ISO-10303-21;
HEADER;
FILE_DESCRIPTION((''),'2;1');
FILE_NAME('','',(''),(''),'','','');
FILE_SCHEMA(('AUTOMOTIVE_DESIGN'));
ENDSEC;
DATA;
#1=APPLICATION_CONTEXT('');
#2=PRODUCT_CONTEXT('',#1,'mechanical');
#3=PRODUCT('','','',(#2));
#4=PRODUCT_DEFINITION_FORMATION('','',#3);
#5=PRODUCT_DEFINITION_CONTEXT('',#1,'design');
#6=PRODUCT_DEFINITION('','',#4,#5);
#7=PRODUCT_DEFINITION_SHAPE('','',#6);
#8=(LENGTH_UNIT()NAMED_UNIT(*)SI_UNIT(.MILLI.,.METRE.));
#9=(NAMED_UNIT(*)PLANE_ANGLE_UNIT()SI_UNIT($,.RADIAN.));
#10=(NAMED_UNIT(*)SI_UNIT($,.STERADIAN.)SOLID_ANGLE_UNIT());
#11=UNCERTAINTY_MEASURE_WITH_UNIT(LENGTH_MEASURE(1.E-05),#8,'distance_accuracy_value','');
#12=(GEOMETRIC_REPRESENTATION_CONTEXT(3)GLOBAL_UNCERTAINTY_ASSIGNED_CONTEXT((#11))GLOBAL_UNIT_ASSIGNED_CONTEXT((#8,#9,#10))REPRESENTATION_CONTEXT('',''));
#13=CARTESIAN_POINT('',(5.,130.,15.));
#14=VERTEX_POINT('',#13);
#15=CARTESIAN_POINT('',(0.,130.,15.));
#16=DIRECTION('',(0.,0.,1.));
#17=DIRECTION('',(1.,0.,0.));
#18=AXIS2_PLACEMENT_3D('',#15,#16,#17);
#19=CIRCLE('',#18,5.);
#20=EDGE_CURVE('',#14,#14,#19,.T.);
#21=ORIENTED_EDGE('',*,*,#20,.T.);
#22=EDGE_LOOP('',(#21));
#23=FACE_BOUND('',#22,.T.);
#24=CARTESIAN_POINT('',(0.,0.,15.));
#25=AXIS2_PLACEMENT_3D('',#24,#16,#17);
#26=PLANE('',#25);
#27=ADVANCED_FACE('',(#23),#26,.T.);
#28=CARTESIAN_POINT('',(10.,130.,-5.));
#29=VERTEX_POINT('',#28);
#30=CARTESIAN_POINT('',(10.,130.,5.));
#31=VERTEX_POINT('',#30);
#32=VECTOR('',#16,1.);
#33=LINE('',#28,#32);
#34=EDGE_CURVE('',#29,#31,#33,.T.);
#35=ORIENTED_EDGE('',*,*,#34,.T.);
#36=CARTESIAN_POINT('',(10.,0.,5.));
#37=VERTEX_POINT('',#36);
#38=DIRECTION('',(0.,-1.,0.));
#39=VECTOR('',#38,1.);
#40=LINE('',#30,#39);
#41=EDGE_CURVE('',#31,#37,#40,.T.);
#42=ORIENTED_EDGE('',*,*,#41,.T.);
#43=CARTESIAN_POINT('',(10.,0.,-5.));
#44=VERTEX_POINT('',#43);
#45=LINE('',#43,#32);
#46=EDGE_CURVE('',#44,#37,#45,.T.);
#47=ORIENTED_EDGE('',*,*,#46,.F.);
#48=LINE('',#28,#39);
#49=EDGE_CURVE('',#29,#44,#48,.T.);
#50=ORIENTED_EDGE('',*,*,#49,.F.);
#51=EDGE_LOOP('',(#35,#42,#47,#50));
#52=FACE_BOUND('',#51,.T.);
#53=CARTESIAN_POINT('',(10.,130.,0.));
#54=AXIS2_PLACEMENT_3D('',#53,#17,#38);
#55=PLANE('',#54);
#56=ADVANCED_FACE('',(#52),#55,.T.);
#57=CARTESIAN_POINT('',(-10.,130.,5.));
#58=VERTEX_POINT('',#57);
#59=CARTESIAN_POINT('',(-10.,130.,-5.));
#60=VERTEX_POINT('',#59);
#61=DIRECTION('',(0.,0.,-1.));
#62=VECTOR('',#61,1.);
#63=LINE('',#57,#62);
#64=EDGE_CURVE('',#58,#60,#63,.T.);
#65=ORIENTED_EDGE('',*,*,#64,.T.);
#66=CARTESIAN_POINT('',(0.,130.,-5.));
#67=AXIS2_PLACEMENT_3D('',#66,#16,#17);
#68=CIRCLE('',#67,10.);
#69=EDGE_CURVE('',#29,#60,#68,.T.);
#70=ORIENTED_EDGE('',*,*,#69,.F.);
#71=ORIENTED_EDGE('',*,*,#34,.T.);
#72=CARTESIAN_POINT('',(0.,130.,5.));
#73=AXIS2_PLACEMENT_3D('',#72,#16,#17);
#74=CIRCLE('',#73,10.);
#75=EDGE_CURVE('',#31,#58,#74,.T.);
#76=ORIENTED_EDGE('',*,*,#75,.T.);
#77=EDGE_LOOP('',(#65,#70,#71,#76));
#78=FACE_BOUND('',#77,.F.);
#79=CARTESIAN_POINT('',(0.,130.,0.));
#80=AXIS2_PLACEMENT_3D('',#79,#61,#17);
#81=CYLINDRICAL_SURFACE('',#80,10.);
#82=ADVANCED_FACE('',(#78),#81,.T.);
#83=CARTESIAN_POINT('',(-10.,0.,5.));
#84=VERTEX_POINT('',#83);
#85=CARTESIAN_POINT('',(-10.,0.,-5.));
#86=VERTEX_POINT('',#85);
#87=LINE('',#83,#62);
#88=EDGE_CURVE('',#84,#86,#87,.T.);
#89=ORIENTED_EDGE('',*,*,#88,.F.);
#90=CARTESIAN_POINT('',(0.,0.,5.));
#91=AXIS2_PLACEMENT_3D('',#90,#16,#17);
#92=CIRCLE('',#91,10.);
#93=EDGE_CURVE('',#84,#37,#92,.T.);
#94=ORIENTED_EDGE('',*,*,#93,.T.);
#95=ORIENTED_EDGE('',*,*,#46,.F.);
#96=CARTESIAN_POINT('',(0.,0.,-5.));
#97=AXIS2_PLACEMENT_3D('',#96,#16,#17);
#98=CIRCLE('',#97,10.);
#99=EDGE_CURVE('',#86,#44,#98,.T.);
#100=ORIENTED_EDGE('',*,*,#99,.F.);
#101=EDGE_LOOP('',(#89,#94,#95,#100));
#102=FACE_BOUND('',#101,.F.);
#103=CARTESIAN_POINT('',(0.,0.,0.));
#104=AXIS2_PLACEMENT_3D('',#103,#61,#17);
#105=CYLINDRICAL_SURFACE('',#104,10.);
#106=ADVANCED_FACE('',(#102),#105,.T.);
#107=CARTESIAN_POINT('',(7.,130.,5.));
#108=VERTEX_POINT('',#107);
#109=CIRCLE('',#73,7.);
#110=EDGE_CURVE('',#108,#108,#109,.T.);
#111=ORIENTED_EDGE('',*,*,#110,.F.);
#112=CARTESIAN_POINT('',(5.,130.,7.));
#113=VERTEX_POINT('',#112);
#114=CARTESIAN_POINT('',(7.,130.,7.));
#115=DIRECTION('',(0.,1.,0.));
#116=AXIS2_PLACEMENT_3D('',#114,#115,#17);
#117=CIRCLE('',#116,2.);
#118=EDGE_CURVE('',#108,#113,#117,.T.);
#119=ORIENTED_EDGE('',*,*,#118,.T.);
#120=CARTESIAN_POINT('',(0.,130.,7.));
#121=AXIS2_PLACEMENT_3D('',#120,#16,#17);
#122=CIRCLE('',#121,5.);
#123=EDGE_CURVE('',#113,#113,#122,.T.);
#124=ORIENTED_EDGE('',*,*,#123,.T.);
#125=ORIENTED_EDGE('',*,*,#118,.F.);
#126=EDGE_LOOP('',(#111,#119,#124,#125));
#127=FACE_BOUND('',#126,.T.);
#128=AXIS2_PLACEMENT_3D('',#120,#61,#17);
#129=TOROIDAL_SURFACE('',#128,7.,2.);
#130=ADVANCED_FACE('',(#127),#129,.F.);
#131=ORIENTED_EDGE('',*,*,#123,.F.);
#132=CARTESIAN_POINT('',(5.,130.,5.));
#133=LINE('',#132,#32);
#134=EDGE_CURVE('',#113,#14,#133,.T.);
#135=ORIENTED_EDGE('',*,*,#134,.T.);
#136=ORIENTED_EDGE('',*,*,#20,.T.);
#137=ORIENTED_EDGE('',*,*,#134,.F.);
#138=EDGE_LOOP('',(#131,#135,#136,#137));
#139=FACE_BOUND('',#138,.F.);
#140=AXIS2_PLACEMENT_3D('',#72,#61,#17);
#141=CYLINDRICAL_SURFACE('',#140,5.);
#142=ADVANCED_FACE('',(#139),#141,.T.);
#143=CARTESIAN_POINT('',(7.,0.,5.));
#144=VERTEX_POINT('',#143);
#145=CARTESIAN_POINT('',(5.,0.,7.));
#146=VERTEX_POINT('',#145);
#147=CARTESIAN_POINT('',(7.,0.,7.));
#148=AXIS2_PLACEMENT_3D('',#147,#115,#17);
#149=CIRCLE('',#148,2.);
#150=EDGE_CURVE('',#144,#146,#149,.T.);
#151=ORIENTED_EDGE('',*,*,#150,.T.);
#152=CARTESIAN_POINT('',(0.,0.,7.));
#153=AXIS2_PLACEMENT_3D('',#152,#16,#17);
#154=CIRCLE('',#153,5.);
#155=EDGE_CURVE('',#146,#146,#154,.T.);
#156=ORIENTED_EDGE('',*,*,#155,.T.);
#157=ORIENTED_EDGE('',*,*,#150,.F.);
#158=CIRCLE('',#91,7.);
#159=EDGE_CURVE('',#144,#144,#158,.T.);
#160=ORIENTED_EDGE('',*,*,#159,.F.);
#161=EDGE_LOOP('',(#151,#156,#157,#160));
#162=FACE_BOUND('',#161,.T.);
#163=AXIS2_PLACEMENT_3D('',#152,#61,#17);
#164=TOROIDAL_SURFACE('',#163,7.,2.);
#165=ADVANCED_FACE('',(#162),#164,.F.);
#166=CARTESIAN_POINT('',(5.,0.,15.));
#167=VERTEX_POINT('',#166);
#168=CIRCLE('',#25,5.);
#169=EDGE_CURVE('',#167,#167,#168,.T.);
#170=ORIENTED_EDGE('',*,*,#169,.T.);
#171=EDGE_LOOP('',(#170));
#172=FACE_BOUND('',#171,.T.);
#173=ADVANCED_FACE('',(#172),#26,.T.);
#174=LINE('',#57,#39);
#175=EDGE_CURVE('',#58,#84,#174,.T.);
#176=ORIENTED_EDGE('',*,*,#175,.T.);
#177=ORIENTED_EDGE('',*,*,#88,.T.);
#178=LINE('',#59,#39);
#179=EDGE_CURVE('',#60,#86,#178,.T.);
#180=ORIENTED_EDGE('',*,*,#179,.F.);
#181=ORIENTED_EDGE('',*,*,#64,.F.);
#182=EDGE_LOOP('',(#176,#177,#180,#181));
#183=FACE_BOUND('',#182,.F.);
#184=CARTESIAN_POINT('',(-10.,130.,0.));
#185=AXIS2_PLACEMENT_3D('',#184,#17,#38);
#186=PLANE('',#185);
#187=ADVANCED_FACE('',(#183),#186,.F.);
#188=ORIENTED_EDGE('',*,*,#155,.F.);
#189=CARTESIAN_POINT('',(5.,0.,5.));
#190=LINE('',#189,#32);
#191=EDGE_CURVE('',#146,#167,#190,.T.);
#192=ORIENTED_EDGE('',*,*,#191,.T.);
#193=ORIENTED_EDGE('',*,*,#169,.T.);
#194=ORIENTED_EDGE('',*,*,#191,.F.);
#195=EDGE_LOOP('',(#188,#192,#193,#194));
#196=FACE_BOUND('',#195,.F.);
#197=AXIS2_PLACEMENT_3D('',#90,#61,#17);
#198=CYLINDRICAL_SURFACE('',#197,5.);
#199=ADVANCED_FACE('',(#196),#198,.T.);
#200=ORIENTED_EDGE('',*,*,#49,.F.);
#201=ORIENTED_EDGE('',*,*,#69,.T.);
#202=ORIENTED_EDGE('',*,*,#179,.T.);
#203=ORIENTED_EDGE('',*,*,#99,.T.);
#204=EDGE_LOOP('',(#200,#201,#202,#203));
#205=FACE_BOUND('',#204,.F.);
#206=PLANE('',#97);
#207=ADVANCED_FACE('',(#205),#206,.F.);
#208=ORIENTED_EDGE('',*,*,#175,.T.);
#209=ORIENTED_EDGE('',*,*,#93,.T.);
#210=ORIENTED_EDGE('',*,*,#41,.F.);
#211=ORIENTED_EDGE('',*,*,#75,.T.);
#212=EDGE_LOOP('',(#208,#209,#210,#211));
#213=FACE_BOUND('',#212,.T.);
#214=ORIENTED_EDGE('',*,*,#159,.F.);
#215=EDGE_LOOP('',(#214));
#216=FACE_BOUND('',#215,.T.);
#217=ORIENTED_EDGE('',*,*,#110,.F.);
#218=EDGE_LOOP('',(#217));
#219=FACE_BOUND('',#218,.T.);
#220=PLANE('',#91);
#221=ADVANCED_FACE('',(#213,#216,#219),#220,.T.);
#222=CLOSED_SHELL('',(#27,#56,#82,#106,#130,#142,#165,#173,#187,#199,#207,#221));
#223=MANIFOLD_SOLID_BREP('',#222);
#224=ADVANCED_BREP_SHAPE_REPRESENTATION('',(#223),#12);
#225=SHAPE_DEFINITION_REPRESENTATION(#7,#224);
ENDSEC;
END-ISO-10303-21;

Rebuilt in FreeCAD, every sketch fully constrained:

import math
import FreeCAD as App
import Part
import Sketcher
from FreeCAD import Vector
Q = App.Units.Quantity


def edges_at(feature, points):
    """Names of the edges that pass closest to the given points."""
    edges = feature.Shape.Edges
    near = lambda p: min(range(len(edges)), key=lambda i: edges[i].distToShape(Part.Vertex(*p))[0])
    return sorted({f"Edge{near(p) + 1}" for p in points})

doc = App.newDocument("Part")
params = doc.addObject("Spreadsheet::Sheet", "Params")
for row, (alias, value) in enumerate([
    ("sketch1_radius", "10 mm"),
    ("sketch1_height", "130 mm"),
    ("pad1_length", "10 mm"),
    ("sketch2_diameter", "10 mm"),
    ("pad2_length", "10 mm"),
    ("fillet_radius", "2 mm"),
], start=1):
    params.set(f"A{row}", alias)
    params.set(f"B{row}", "=" + value)
    params.setAlias(f"B{row}", alias)

body = doc.addObject("PartDesign::Body", "Body")

# Sketch on XY plane
sketch1 = body.newObject("Sketcher::SketchObject", "Sketch")
sketch1.AttachmentSupport = (doc.getObject("XY_Plane"), [""])
sketch1.MapMode = "FlatFace"
sketch1.addGeometry(Part.ArcOfCircle(Part.Circle(Vector(0, 0, 0), Vector(0, 0, 1), 10), math.radians(180), math.radians(360)), False)
sketch1.addGeometry(Part.LineSegment(Vector(10, 0, 0), Vector(10, 130, 0)), False)
sketch1.addGeometry(Part.ArcOfCircle(Part.Circle(Vector(0, 130, 0), Vector(0, 0, 1), 10), math.radians(0), math.radians(180)), False)
sketch1.addGeometry(Part.LineSegment(Vector(-10, 130, 0), Vector(-10, 0, 0)), False)
sketch1.addConstraint(Sketcher.Constraint("Tangent", 0, 2, 1, 1))
sketch1.addConstraint(Sketcher.Constraint("Tangent", 1, 2, 2, 1))
sketch1.addConstraint(Sketcher.Constraint("Tangent", 2, 2, 3, 1))
sketch1.addConstraint(Sketcher.Constraint("Tangent", 3, 2, 0, 1))
sketch1.addConstraint(Sketcher.Constraint("Vertical", 1))
sketch1.addConstraint(Sketcher.Constraint("Vertical", 3))
sketch1.addConstraint(Sketcher.Constraint("Coincident", 0, 3, -1, 1))
sketch1.addConstraint(Sketcher.Constraint("Radius", 0, Q("10 mm")))
sketch1.addConstraint(Sketcher.Constraint("DistanceY", 1, 1, 1, 2, Q("130 mm")))
sketch1.setExpression("Constraints[7]", "Params.sketch1_radius")
sketch1.setExpression("Constraints[8]", "Params.sketch1_height")
pad1 = body.newObject("PartDesign::Pad", "Pad")
pad1.Profile = sketch1
pad1.setExpression("Length", "Params.pad1_length")
pad1.Midplane = True

# Sketch on XY plane
sketch2 = body.newObject("Sketcher::SketchObject", "Sketch001")
sketch2.AttachmentSupport = (doc.getObject("XY_Plane"), [""])
sketch2.MapMode = "FlatFace"
sketch2.AttachmentOffset = App.Placement(Vector(0, 0, 5), App.Rotation())
sketch2.addGeometry(Part.Circle(Vector(0, 130, 0), Vector(0, 0, 1), 5), False)
sketch2.addGeometry(Part.Circle(Vector(0, 0, 0), Vector(0, 0, 1), 5), False)
sketch2.addConstraint(Sketcher.Constraint("Coincident", 1, 3, -1, 1))
sketch2.addConstraint(Sketcher.Constraint("Equal", 0, 1))
sketch2.addConstraint(Sketcher.Constraint("PointOnObject", 0, 3, -2))
sketch2.addConstraint(Sketcher.Constraint("Diameter", 0, Q("10 mm")))
sketch2.addConstraint(Sketcher.Constraint("DistanceY", -1, 1, 0, 3, Q("130 mm")))
sketch2.setExpression("Constraints[3]", "Params.sketch2_diameter")
pad2 = body.newObject("PartDesign::Pad", "Pad001")
pad2.Profile = sketch2
pad2.setExpression("Length", "Params.pad2_length")
doc.recompute()

fillet = body.newObject("PartDesign::Fillet", "Fillet")
fillet.Base = (pad2, edges_at(pad2, [(-5, 130, 5), (-5, 0, 5)]))
fillet.setExpression("Radius", "Params.fillet_radius")

doc.recompute()
